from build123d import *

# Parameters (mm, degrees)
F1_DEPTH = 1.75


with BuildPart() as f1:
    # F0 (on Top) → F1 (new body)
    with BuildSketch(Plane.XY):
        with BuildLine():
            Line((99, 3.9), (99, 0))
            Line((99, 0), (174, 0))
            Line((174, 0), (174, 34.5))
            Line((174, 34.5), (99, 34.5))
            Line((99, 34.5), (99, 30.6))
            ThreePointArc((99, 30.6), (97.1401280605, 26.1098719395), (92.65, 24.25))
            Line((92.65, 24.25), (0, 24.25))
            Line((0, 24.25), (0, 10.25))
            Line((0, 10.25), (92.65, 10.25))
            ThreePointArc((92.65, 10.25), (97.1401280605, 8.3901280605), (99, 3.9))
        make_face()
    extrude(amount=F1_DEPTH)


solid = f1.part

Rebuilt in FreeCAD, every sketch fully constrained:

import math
import FreeCAD as App
import Part
import Sketcher
from FreeCAD import Vector
Q = App.Units.Quantity

doc = App.newDocument("Part")
params = doc.addObject("Spreadsheet::Sheet", "Params")
for row, (alias, value) in enumerate([
    ("sketch1_width", "75 mm"),
    ("sketch1_height", "14 mm"),
    ("sketch1_radius", "6.35 mm"),
    ("sketch1_height2", "3.9 mm"),
    ("pad1_length", "1.75 mm"),
], start=1):
    params.set(f"A{row}", alias)
    params.set(f"B{row}", "=" + value)
    params.setAlias(f"B{row}", alias)

body = doc.addObject("PartDesign::Body", "Body")

# Sketch on XY plane
sketch1 = body.newObject("Sketcher::SketchObject", "Sketch")
sketch1.AttachmentSupport = (doc.getObject("XY_Plane"), [""])
sketch1.MapMode = "FlatFace"
sketch1.addGeometry([
    Part.LineSegment(Vector(99, 3.9, 0), Vector(99, 0, 0)),  # 0
    Part.LineSegment(Vector(99, 0, 0), Vector(174, 0, 0)),  # 1
    Part.LineSegment(Vector(174, 0, 0), Vector(174, 34.5, 0)),  # 2
    Part.LineSegment(Vector(174, 34.5, 0), Vector(99, 34.5, 0)),  # 3
    Part.LineSegment(Vector(99, 34.5, 0), Vector(99, 30.6, 0)),  # 4
    Part.ArcOfCircle(Part.Circle(Vector(92.7, 30.6, 0), Vector(0, 0, 1), 6.3), math.radians(-90), math.radians(0)),  # 5
    Part.LineSegment(Vector(92.7, 24.2, 0), Vector(0, 24.2, 0)),  # 6
    Part.LineSegment(Vector(0, 24.2, 0), Vector(0, 10.2, 0)),  # 7
    Part.LineSegment(Vector(0, 10.2, 0), Vector(92.7, 10.2, 0)),  # 8
    Part.ArcOfCircle(Part.Circle(Vector(92.7, 3.9, 0), Vector(0, 0, 1), 6.3), math.radians(0), math.radians(90)),  # 9
], False)
sketch1.addConstraint([
    Sketcher.Constraint("Coincident", 0, 2, 1, 1),
    Sketcher.Constraint("Coincident", 1, 2, 2, 1),
    Sketcher.Constraint("Coincident", 2, 2, 3, 1),
    Sketcher.Constraint("Coincident", 3, 2, 4, 1),
    Sketcher.Constraint("Tangent", 4, 2, 5, 2),
    Sketcher.Constraint("Tangent", 5, 1, 6, 1),
    Sketcher.Constraint("Coincident", 6, 2, 7, 1),
    Sketcher.Constraint("Coincident", 7, 2, 8, 1),
    Sketcher.Constraint("Tangent", 8, 2, 9, 2),
    Sketcher.Constraint("Tangent", 9, 1, 0, 1),
    Sketcher.Constraint("Vertical", 0),
    Sketcher.Constraint("Horizontal", 1),
    Sketcher.Constraint("Vertical", 2),
    Sketcher.Constraint("Horizontal", 3),
    Sketcher.Constraint("Vertical", 4),
    Sketcher.Constraint("Horizontal", 6),
    Sketcher.Constraint("Vertical", 7),
    Sketcher.Constraint("Horizontal", 8),
    Sketcher.Constraint("Equal", 5, 9),
    Sketcher.Constraint("PointOnObject", 0, 2, -1),
    Sketcher.Constraint("PointOnObject", 6, 2, -2),
    Sketcher.Constraint("Vertical", 5, 3, 9, 3),
    Sketcher.Constraint("Equal", 0, 4),
    Sketcher.Constraint("DistanceX", 1, 1, 1, 2, Q("75 mm")),
    Sketcher.Constraint("DistanceY", 7, 2, 7, 1, Q("14 mm")),
    Sketcher.Constraint("Radius", 5, Q("6.35 mm")),
    Sketcher.Constraint("DistanceY", 0, 2, 0, 1, Q("3.9 mm")),
    Sketcher.Constraint("DistanceX", -1, 1, 0, 2, Q("99 mm")),
])
sketch1.setExpression("Constraints[23]", "Params.sketch1_width")
sketch1.setExpression("Constraints[24]", "Params.sketch1_height")
sketch1.setExpression("Constraints[25]", "Params.sketch1_radius")
sketch1.setExpression("Constraints[26]", "Params.sketch1_height2")
pad1 = body.newObject("PartDesign::Pad", "Pad")
pad1.Profile = sketch1
pad1.setExpression("Length", "Params.pad1_length")

doc.recompute()
